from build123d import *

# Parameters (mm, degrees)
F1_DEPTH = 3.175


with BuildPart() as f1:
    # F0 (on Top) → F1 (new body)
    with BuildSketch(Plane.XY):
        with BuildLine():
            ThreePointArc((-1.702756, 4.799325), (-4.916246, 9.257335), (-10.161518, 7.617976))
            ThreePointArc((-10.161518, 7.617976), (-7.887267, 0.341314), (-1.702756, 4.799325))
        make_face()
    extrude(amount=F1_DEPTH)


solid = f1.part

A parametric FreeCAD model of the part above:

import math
import FreeCAD as App
import Part
import Sketcher
from FreeCAD import Vector
Q = App.Units.Quantity

doc = App.newDocument("Part")
body = doc.addObject("PartDesign::Body", "Body")

# Sketch on XY plane
sketch1 = body.newObject("Sketcher::SketchObject", "Sketch")
sketch1.AttachmentSupport = (doc.getObject("XY_Plane"), [""])
sketch1.MapMode = "FlatFace"
sketch1.addGeometry([
    Part.ArcOfCircle(Part.Circle(Vector(-6.401757, 4.799324, 0), Vector(0, 0, 1), 4.699001), math.radians(0.000016), math.radians(143.141503)),
    Part.ArcOfCircle(Part.Circle(Vector(-6.401756, 4.799325, 0), Vector(0, 0, 1), 4.699), math.radians(143.141517), math.radians(360.000002)),
], False)
sketch1.addConstraint([
    Sketcher.Constraint("Tangent", 0, 1, 1, 2),
    Sketcher.Constraint("Coincident", 1, 1, 0, 2),
    Sketcher.Constraint("Horizontal", 1, 3, 0, 1),
    Sketcher.Constraint("Radius", 0, Q("0.185 in")),
    Sketcher.Constraint("DistanceX", 1, 1, -1, 1, 10.161518),
    Sketcher.Constraint("DistanceX", 1, 1, 1, 3, 3.759762),
    Sketcher.Constraint("DistanceY", -1, 1, 0, 3, 4.799324),
])
pad1 = body.newObject("PartDesign::Pad", "Pad")
pad1.Profile = sketch1
pad1.Length = Q("0.125 in")

doc.recompute()
